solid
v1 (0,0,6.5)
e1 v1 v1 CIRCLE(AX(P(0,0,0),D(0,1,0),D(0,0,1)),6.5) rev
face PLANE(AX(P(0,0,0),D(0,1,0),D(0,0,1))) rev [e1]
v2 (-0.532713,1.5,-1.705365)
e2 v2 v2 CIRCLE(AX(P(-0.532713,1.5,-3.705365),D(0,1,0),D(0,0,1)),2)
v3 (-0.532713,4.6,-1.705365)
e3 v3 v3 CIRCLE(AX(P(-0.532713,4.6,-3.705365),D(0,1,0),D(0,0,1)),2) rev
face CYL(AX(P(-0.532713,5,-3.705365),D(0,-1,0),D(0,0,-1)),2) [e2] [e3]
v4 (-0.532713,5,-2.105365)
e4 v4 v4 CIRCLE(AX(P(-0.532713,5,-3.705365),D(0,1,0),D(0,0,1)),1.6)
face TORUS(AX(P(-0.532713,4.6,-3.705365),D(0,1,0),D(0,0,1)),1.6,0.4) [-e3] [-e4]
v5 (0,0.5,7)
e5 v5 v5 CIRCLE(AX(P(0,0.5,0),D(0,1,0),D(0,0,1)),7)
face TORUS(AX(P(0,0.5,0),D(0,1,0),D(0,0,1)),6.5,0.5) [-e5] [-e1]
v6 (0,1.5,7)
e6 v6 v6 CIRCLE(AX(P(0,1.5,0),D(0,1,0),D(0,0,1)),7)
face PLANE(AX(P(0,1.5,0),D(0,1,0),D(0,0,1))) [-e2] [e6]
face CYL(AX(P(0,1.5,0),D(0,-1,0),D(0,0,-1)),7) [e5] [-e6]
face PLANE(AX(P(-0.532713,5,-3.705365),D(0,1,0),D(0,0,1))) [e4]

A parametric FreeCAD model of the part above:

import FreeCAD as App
import Part
import Sketcher
Q = App.Units.Quantity


def edges_at(feature, points):
    """Names of the edges that pass closest to the given points."""
    edges = feature.Shape.Edges
    near = lambda p: min(range(len(edges)), key=lambda i: edges[i].distToShape(Part.Vertex(*p))[0])
    return sorted({f"Edge{near(p) + 1}" for p in points})

doc = App.newDocument("Part")
body = doc.addObject("PartDesign::Body", "Body")

sketch1 = body.newObject("Sketcher::SketchObject", "Sketch")
sketch1.AttachmentSupport = (doc.getObject("XZ_Plane"), [""])
sketch1.MapMode = "FlatFace"
sketch1.addGeometry(Part.Circle(App.Vector(0, 0, 0), App.Vector(0, 0, 1), 7), False)
sketch1.addConstraint(Sketcher.Constraint("Coincident", 0, 3, -1, 1))
sketch1.addConstraint(Sketcher.Constraint("Diameter", 0, Q("14 mm")))
pad1 = body.newObject("PartDesign::Pad", "Pad")
pad1.Profile = sketch1
pad1.Length = 1.5
pad1.Reversed = True

sketch2 = body.newObject("Sketcher::SketchObject", "Sketch001")
sketch2.AttachmentSupport = (doc.getObject("XZ_Plane"), [""])
sketch2.MapMode = "FlatFace"
sketch2.AttachmentOffset = App.Placement(App.Vector(0, 0, -1.5), App.Rotation())
sketch2.addGeometry(Part.Circle(App.Vector(-0.5, -3.7, 0), App.Vector(0, 0, 1), 2), False)
sketch2.addConstraint(Sketcher.Constraint("Diameter", 0, Q("4 mm")))
sketch2.addConstraint(Sketcher.Constraint("DistanceX", 0, 3, -1, 1, Q("0.532713 mm")))
sketch2.addConstraint(Sketcher.Constraint("DistanceY", 0, 3, -1, 1, Q("3.705365 mm")))
pad2 = body.newObject("PartDesign::Pad", "Pad001")
pad2.Profile = sketch2
pad2.Length = 3.5
pad2.Reversed = True
doc.recompute()

fillet = body.newObject("PartDesign::Fillet", "Fillet")
fillet.Base = (pad2, edges_at(pad2, [(-0.533, 5, -5.705)]))
fillet.Radius = 0.4
doc.recompute()

fillet2 = body.newObject("PartDesign::Fillet", "Fillet001")
fillet2.Base = (fillet, edges_at(fillet, [(0, 0, -7)]))
fillet2.Radius = 0.5

doc.recompute()
